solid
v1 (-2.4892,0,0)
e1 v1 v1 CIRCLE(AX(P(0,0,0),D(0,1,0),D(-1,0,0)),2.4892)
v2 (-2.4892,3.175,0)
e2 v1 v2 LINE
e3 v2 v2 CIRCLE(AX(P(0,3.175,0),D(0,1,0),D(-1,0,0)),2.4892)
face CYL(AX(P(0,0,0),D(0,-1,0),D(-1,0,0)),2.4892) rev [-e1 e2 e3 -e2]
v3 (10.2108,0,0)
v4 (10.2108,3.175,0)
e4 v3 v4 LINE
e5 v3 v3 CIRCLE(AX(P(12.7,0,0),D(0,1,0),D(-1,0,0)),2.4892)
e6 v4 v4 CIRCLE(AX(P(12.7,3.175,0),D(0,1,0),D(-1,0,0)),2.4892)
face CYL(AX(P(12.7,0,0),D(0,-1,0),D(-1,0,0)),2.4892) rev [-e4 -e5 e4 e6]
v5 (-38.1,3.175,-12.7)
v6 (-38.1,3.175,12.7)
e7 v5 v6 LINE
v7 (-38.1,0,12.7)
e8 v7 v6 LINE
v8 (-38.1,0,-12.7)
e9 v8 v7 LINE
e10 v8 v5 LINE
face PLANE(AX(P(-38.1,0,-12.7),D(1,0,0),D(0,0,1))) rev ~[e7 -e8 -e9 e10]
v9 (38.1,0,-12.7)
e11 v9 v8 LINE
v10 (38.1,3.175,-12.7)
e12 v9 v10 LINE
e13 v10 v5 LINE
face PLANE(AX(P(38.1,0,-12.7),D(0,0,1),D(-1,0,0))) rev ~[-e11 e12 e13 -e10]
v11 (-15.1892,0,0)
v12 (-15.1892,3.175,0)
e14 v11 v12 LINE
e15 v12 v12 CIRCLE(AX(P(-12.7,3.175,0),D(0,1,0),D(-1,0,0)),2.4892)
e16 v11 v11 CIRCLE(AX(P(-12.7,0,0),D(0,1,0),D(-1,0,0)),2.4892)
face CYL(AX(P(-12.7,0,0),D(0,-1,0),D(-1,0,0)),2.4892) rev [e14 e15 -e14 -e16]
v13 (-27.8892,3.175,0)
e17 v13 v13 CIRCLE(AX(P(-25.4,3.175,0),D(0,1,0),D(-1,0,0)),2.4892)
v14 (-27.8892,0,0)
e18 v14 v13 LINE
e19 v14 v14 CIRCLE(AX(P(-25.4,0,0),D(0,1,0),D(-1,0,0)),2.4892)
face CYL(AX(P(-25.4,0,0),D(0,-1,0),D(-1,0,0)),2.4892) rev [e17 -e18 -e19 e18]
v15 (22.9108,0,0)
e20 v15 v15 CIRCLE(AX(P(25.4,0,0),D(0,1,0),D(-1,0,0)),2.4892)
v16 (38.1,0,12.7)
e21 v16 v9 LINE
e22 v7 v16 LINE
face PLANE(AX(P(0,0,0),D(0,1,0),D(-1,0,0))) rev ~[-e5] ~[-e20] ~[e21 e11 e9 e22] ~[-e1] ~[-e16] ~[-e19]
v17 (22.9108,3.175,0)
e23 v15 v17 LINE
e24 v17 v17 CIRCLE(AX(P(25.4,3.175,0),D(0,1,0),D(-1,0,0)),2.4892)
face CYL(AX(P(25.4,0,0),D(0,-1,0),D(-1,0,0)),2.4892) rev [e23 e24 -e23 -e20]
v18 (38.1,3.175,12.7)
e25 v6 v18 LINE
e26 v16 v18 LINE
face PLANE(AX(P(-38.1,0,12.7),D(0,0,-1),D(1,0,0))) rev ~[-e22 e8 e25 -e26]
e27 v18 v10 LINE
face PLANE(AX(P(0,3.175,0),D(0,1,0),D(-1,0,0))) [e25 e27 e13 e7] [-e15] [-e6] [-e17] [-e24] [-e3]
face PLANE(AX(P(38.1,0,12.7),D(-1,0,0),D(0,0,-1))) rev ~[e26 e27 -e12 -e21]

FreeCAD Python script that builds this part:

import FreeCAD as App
import Part
import Sketcher

V = App.Vector
Q = App.Units.Quantity

doc = App.newDocument("Part")
params = doc.addObject("Spreadsheet::Sheet", "Params")
for row, (alias, value) in enumerate([
    ("sketch1_width", "3 in"),
    ("sketch1_height", "1 in"),
    ("sketch1_diameter", "0.196 in"),
    ("pad1_length", "0.125 in"),
], start=1):
    params.set(f"A{row}", alias)
    params.set(f"B{row}", "=" + value)
    params.setAlias(f"B{row}", alias)

body = doc.addObject("PartDesign::Body", "Body")

sketch1 = doc.addObject("Sketcher::SketchObject", "Sketch")
body.addObject(sketch1)
sketch1.AttachmentSupport = (doc.XZ_Plane, [""])
sketch1.MapMode = "FlatFace"
sketch1.addGeometry(Part.LineSegment(V(-38.1, -12.7, 0), V(-38.1, 12.7, 0)), False)
sketch1.addGeometry(Part.LineSegment(V(-38.1, 12.7, 0), V(38.1, 12.7, 0)), False)
sketch1.addGeometry(Part.LineSegment(V(38.1, 12.7, 0), V(38.1, -12.7, 0)), False)
sketch1.addGeometry(Part.LineSegment(V(38.1, -12.7, 0), V(-38.1, -12.7, 0)), False)
sketch1.addGeometry(Part.Circle(V(25.4, 0, 0), V(0, 0, 1), 2.4892), False)
sketch1.addGeometry(Part.Circle(V(12.7, 0, 0), V(0, 0, 1), 2.4892), False)
sketch1.addGeometry(Part.Circle(V(0, 0, 0), V(0, 0, 1), 2.4892), False)
sketch1.addGeometry(Part.Circle(V(-12.7, 0, 0), V(0, 0, 1), 2.4892), False)
sketch1.addGeometry(Part.Circle(V(-25.4, 0, 0), V(0, 0, 1), 2.4892), False)
sketch1.addConstraint(Sketcher.Constraint("Coincident", 0, 2, 1, 1))
sketch1.addConstraint(Sketcher.Constraint("Coincident", 1, 2, 2, 1))
sketch1.addConstraint(Sketcher.Constraint("Coincident", 2, 2, 3, 1))
sketch1.addConstraint(Sketcher.Constraint("Coincident", 3, 2, 0, 1))
sketch1.addConstraint(Sketcher.Constraint("Vertical", 0))
sketch1.addConstraint(Sketcher.Constraint("Horizontal", 1))
sketch1.addConstraint(Sketcher.Constraint("Vertical", 2))
sketch1.addConstraint(Sketcher.Constraint("Horizontal", 3))
sketch1.addConstraint(Sketcher.Constraint("Coincident", 6, 3, -1, 1))
sketch1.addConstraint(Sketcher.Constraint("Equal", 4, 5))
sketch1.addConstraint(Sketcher.Constraint("Equal", 5, 6))
sketch1.addConstraint(Sketcher.Constraint("Equal", 6, 7))
sketch1.addConstraint(Sketcher.Constraint("Equal", 7, 8))
sketch1.addConstraint(Sketcher.Constraint("Symmetric", 5, 3, 7, 3, -1, 1))
sketch1.addConstraint(Sketcher.Constraint("Symmetric", 4, 3, 8, 3, -1, 1))
sketch1.addConstraint(Sketcher.Constraint("Symmetric", 0, 2, 2, 2, -1, 1))
sketch1.addConstraint(Sketcher.Constraint("PointOnObject", 4, 3, -1))
sketch1.addConstraint(Sketcher.Constraint("PointOnObject", 5, 3, -1))
sketch1.addConstraint(Sketcher.Constraint("DistanceX", 1, 1, 1, 2, Q("3 in")))
sketch1.addConstraint(Sketcher.Constraint("DistanceY", 0, 1, 0, 2, Q("1 in")))
sketch1.addConstraint(Sketcher.Constraint("Diameter", 4, Q("0.196 in")))
sketch1.addConstraint(Sketcher.Constraint("DistanceX", -1, 1, 4, 3, Q("1 in")))
sketch1.addConstraint(Sketcher.Constraint("DistanceX", 7, 3, 5, 3, Q("1 in")))
sketch1.setExpression("Constraints[18]", "Params.sketch1_width")
sketch1.setExpression("Constraints[19]", "Params.sketch1_height")
sketch1.setExpression("Constraints[20]", "Params.sketch1_diameter")
pad1 = doc.addObject("PartDesign::Pad", "Pad")
body.addObject(pad1)
pad1.Profile = sketch1
pad1.setExpression("Length", "Params.pad1_length")
pad1.Reversed = True

doc.recompute()
